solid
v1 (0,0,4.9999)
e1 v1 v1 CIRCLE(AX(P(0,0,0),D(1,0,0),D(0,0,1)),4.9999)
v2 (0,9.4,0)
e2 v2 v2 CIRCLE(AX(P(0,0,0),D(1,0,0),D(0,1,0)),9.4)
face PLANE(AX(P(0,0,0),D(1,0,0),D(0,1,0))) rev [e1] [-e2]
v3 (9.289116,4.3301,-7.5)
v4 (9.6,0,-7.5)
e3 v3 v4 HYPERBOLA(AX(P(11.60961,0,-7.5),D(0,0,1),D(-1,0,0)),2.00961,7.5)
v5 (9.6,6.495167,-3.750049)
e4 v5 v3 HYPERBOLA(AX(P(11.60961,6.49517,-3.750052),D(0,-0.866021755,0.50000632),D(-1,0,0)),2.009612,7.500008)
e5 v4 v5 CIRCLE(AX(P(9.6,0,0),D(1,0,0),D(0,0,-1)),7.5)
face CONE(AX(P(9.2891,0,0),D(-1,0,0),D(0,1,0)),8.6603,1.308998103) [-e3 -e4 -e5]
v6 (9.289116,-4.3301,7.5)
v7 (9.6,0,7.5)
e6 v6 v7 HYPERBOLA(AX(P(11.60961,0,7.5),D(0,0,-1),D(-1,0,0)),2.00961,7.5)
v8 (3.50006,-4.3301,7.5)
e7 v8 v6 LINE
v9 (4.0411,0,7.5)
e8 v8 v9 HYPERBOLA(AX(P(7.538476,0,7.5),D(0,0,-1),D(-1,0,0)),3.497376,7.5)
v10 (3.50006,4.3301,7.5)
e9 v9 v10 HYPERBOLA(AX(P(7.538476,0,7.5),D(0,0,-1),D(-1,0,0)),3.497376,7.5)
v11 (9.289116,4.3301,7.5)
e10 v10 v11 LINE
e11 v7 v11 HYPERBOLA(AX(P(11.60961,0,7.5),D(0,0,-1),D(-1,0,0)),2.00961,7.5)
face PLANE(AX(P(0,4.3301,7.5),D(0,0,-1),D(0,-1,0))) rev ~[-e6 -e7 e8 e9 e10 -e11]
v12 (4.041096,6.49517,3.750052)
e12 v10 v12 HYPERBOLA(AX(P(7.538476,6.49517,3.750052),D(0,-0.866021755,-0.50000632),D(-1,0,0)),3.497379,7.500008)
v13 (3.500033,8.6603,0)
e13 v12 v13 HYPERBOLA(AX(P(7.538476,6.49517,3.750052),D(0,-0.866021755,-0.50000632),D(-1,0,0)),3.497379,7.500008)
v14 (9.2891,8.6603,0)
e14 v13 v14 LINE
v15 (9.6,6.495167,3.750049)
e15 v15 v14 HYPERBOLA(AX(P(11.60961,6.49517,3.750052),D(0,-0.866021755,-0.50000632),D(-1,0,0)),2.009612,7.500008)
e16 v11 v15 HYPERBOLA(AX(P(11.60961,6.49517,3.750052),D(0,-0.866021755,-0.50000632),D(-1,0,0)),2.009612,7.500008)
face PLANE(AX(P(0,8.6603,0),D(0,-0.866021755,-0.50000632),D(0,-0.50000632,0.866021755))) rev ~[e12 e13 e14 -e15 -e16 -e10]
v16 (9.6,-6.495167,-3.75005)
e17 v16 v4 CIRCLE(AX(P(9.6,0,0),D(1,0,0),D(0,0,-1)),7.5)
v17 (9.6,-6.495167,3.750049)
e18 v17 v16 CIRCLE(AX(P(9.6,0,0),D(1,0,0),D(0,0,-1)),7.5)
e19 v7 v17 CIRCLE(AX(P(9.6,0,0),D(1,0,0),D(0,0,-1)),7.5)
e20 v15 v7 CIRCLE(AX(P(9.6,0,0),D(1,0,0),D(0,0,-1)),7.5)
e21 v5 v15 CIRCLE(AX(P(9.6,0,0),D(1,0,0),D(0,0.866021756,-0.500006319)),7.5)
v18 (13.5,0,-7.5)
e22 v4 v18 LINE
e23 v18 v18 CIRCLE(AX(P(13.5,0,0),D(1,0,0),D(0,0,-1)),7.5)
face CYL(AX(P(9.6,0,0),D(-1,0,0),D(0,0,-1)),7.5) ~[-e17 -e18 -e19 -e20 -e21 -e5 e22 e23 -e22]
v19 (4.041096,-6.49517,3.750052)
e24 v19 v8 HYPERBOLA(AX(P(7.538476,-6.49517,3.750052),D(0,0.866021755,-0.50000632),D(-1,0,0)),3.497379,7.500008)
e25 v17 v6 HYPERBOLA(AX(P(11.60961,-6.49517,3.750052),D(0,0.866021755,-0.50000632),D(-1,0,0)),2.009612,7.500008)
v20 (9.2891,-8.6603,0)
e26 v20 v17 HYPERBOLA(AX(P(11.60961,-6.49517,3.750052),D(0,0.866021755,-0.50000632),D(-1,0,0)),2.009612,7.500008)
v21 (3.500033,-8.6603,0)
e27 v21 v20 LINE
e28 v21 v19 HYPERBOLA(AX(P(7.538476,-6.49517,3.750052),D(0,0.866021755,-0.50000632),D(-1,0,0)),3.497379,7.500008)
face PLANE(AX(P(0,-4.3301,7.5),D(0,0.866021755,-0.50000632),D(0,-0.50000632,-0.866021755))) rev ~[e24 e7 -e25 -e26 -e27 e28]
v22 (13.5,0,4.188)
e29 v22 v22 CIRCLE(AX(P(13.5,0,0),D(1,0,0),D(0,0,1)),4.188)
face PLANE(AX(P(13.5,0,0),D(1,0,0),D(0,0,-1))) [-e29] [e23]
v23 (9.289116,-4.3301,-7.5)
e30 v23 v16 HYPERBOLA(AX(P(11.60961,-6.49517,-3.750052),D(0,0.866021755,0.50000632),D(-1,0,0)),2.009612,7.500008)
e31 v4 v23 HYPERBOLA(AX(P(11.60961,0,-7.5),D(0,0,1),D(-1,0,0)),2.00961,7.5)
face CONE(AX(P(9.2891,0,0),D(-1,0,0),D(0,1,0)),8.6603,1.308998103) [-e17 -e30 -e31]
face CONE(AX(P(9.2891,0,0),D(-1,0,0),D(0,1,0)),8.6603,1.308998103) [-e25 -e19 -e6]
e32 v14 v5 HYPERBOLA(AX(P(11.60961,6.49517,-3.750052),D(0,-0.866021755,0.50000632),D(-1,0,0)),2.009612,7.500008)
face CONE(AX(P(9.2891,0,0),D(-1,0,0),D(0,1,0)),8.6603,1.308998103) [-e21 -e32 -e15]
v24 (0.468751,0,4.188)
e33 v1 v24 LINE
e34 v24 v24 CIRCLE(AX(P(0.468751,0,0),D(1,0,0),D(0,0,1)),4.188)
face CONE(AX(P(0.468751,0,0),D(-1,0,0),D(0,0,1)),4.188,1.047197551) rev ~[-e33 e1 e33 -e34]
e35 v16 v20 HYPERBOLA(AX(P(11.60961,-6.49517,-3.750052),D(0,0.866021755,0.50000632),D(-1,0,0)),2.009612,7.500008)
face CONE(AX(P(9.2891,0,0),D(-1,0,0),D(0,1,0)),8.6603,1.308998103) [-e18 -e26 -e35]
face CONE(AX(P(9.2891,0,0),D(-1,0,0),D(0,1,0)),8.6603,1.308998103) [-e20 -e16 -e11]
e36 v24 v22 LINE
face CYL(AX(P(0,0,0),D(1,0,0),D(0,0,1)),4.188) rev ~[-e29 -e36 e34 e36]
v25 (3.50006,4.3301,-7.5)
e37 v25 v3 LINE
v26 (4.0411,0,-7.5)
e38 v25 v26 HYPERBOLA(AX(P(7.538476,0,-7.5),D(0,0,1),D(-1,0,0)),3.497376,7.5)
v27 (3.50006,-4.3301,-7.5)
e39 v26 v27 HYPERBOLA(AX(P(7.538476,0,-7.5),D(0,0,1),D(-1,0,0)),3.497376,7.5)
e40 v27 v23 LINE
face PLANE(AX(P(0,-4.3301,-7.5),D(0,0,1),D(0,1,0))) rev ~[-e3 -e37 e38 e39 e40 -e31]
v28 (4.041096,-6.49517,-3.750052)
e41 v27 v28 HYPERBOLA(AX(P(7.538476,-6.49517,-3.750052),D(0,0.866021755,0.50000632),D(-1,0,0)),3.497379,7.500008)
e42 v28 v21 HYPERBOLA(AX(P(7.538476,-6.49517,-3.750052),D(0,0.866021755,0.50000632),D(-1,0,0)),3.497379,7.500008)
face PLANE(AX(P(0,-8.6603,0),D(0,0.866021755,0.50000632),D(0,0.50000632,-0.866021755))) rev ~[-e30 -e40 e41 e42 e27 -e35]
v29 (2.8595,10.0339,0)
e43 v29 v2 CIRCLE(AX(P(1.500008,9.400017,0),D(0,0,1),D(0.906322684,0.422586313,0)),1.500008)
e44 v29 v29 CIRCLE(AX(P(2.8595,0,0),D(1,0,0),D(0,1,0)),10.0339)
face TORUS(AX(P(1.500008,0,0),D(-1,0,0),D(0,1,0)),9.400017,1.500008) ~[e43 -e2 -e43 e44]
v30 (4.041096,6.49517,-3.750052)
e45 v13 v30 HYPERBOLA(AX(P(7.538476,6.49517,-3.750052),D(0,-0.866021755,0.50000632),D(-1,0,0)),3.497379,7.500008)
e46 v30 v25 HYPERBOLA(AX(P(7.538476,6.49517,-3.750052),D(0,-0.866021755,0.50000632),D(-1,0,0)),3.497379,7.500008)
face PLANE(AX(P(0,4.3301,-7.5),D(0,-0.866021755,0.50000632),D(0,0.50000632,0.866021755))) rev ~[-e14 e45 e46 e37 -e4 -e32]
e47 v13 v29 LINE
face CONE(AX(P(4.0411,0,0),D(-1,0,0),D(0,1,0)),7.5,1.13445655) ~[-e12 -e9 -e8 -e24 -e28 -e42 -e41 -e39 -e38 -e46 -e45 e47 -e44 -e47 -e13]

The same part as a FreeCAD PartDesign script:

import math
import FreeCAD as App
import Part
import Sketcher

V = App.Vector
Q = App.Units.Quantity


def edges_at(feature, points):
    """Names of the edges that pass closest to the given points."""
    edges = feature.Shape.Edges
    near = lambda p: min(range(len(edges)), key=lambda i: edges[i].distToShape(Part.Vertex(*p))[0])
    return sorted({f"Edge{near(p) + 1}" for p in points})


def add_polygon(sketch, points):
    """Adds a closed chain of lines whose ends are joined by coincident constraints."""
    first, n = sketch.GeometryCount, len(points)
    for a, b in zip(points, points[1:] + points[:1]):
        sketch.addGeometry(Part.LineSegment(App.Vector(*a, 0), App.Vector(*b, 0)), False)
    for i in range(n):
        sketch.addConstraint(Sketcher.Constraint("Coincident", first + i, 2, first + (i + 1) % n, 1))

doc = App.newDocument("Part")
body = doc.addObject("PartDesign::Body", "Body")

# Sketch on XY plane
sketch1 = body.newObject("Sketcher::SketchObject", "Sketch")
sketch1.AttachmentSupport = (doc.getObject("XY_Plane"), [""])
sketch1.MapMode = "FlatFace"
sketch1.addGeometry(Part.LineSegment(V(0, 9.4, 0), V(0, 0, 0)), False)
sketch1.addGeometry(Part.LineSegment(V(0, 0, 0), V(4, 0, 0)), False)
sketch1.addGeometry(Part.LineSegment(V(4, 0, 0), V(4, 7.5, 0)), False)
sketch1.addGeometry(Part.LineSegment(V(4, 7.5, 0), V(2.9, 10, 0)), False)
sketch1.addGeometry(Part.ArcOfCircle(Part.Circle(V(1.5, 9.4, 0), V(0, 0, 1), 1.5), math.radians(25), math.radians(180)), False)
sketch1.addConstraint(Sketcher.Constraint("Coincident", 0, 2, 1, 1))
sketch1.addConstraint(Sketcher.Constraint("Coincident", 1, 2, 2, 1))
sketch1.addConstraint(Sketcher.Constraint("Coincident", 2, 2, 3, 1))
sketch1.addConstraint(Sketcher.Constraint("Tangent", 3, 2, 4, 1))
sketch1.addConstraint(Sketcher.Constraint("Tangent", 4, 2, 0, 1))
sketch1.addConstraint(Sketcher.Constraint("Vertical", 0))
sketch1.addConstraint(Sketcher.Constraint("Horizontal", 1))
sketch1.addConstraint(Sketcher.Constraint("Vertical", 2))
sketch1.addConstraint(Sketcher.Constraint("Coincident", 0, 2, -1, 1))
sketch1.addConstraint(Sketcher.Constraint("Radius", 4, 1.5))
sketch1.addConstraint(Sketcher.Constraint("Angle", 3, Q("115.0004 deg")))
sketch1.addConstraint(Sketcher.Constraint("DistanceY", 0, 2, 0, 1, 9.4))
sketch1.addConstraint(Sketcher.Constraint("DistanceY", 2, 1, 2, 2, 7.5))
revolution = body.newObject("PartDesign::Revolution", "Revolution")
revolution.Profile = sketch1
revolution.ReferenceAxis = (sketch1, ["H_Axis"])
revolution.Angle = 360

# Sketch on YZ plane
sketch2 = body.newObject("Sketcher::SketchObject", "Sketch001")
sketch2.AttachmentSupport = (doc.getObject("YZ_Plane"), [""])
sketch2.MapMode = "FlatFace"
add_polygon(sketch2, [(4, -8), (-4, -8), (-9, 0), (-4, 8), (4, 8), (9, 0)])  # lines 0-5
sketch2.addConstraint(Sketcher.Constraint("Horizontal", 0))
sketch2.addConstraint(Sketcher.Constraint("Horizontal", 3))
sketch2.addConstraint(Sketcher.Constraint("Symmetric", 0, 2, 3, 2, -1, 1))
sketch2.addConstraint(Sketcher.Constraint("Symmetric", 1, 2, 4, 2, -1, 1))
sketch2.addConstraint(Sketcher.Constraint("PointOnObject", 1, 2, -1))
sketch2.addConstraint(Sketcher.Constraint("Parallel", 2, 5))
sketch2.addConstraint(Sketcher.Constraint("Vertical", 0, 2, 2, 2))
sketch2.addConstraint(Sketcher.Constraint("Angle", 1, Q("120.0004 deg")))
sketch2.addConstraint(Sketcher.Constraint("DistanceY", 0, 2, 2, 2, 15.0))
sketch2.addConstraint(Sketcher.Constraint("DistanceX", 1, 2, 4, 2, 17.3206))
pad1 = body.newObject("PartDesign::Pad", "Pad")
pad1.Profile = sketch2
pad1.Length = 9.6

# Sketch on YZ plane
sketch3 = body.newObject("Sketcher::SketchObject", "Sketch002")
sketch3.AttachmentSupport = (doc.getObject("YZ_Plane"), [""])
sketch3.MapMode = "FlatFace"
sketch3.AttachmentOffset = App.Placement(V(0, 0, 9.6), App.Rotation())
sketch3.addGeometry(Part.Circle(V(0, 0, 0), V(0, 0, 1), 8), False)
sketch3.addConstraint(Sketcher.Constraint("Coincident", 0, 3, -1, 1))
sketch3.addConstraint(Sketcher.Constraint("Diameter", 0, 15.0))
pad2 = body.newObject("PartDesign::Pad", "Pad001")
pad2.Profile = sketch3
pad2.Length = 3.9

# Sketch on YZ plane
sketch4 = body.newObject("Sketcher::SketchObject", "Sketch003")
sketch4.AttachmentSupport = (doc.getObject("YZ_Plane"), [""])
sketch4.MapMode = "FlatFace"
sketch4.addGeometry(Part.Circle(V(0, 0, 0), V(0, 0, 1), 4.2), False)
sketch4.addConstraint(Sketcher.Constraint("Coincident", 0, 3, -1, 1))
sketch4.addConstraint(Sketcher.Constraint("Diameter", 0, 8.376))
doc.recompute()
hole = body.newObject("PartDesign::Hole", "Hole")
hole.Profile = sketch4
hole.ThreadType = "None"
hole.Diameter = 8.376
hole.DepthType = "ThroughAll"
hole.Reversed = True

# Sketch on XY plane
sketch5 = body.newObject("Sketcher::SketchObject", "Sketch004")
sketch5.AttachmentSupport = (doc.getObject("XY_Plane"), [""])
sketch5.MapMode = "FlatFace"
add_polygon(sketch5, [(9.6, 8.66), (9.29, 8.66), (9.6, 7.5)])  # lines 0-2
sketch5.addConstraint(Sketcher.Constraint("Horizontal", 0))
sketch5.addConstraint(Sketcher.Constraint("Vertical", 2))
sketch5.addConstraint(Sketcher.Constraint("Angle", 1, Q("-75 deg")))
sketch5.addConstraint(Sketcher.Constraint("DistanceX", -1, 1, 1, 2, 9.6))
sketch5.addConstraint(Sketcher.Constraint("DistanceY", -1, 1, 1, 2, 7.5))
sketch5.addConstraint(Sketcher.Constraint("DistanceX", 0, 2, 0, 1, 0.311))
groove = body.newObject("PartDesign::Groove", "Groove")
groove.Profile = sketch5
groove.ReferenceAxis = (sketch5, ["H_Axis"])
groove.Angle = 360
doc.recompute()

chamfer = body.newObject("PartDesign::Chamfer", "Chamfer")
chamfer.Base = (groove, edges_at(groove, [(0, 0, -4.188)]))
chamfer.ChamferType = "Distance and Angle"
chamfer.Size = 0.8119
chamfer.Angle = 30

doc.recompute()
